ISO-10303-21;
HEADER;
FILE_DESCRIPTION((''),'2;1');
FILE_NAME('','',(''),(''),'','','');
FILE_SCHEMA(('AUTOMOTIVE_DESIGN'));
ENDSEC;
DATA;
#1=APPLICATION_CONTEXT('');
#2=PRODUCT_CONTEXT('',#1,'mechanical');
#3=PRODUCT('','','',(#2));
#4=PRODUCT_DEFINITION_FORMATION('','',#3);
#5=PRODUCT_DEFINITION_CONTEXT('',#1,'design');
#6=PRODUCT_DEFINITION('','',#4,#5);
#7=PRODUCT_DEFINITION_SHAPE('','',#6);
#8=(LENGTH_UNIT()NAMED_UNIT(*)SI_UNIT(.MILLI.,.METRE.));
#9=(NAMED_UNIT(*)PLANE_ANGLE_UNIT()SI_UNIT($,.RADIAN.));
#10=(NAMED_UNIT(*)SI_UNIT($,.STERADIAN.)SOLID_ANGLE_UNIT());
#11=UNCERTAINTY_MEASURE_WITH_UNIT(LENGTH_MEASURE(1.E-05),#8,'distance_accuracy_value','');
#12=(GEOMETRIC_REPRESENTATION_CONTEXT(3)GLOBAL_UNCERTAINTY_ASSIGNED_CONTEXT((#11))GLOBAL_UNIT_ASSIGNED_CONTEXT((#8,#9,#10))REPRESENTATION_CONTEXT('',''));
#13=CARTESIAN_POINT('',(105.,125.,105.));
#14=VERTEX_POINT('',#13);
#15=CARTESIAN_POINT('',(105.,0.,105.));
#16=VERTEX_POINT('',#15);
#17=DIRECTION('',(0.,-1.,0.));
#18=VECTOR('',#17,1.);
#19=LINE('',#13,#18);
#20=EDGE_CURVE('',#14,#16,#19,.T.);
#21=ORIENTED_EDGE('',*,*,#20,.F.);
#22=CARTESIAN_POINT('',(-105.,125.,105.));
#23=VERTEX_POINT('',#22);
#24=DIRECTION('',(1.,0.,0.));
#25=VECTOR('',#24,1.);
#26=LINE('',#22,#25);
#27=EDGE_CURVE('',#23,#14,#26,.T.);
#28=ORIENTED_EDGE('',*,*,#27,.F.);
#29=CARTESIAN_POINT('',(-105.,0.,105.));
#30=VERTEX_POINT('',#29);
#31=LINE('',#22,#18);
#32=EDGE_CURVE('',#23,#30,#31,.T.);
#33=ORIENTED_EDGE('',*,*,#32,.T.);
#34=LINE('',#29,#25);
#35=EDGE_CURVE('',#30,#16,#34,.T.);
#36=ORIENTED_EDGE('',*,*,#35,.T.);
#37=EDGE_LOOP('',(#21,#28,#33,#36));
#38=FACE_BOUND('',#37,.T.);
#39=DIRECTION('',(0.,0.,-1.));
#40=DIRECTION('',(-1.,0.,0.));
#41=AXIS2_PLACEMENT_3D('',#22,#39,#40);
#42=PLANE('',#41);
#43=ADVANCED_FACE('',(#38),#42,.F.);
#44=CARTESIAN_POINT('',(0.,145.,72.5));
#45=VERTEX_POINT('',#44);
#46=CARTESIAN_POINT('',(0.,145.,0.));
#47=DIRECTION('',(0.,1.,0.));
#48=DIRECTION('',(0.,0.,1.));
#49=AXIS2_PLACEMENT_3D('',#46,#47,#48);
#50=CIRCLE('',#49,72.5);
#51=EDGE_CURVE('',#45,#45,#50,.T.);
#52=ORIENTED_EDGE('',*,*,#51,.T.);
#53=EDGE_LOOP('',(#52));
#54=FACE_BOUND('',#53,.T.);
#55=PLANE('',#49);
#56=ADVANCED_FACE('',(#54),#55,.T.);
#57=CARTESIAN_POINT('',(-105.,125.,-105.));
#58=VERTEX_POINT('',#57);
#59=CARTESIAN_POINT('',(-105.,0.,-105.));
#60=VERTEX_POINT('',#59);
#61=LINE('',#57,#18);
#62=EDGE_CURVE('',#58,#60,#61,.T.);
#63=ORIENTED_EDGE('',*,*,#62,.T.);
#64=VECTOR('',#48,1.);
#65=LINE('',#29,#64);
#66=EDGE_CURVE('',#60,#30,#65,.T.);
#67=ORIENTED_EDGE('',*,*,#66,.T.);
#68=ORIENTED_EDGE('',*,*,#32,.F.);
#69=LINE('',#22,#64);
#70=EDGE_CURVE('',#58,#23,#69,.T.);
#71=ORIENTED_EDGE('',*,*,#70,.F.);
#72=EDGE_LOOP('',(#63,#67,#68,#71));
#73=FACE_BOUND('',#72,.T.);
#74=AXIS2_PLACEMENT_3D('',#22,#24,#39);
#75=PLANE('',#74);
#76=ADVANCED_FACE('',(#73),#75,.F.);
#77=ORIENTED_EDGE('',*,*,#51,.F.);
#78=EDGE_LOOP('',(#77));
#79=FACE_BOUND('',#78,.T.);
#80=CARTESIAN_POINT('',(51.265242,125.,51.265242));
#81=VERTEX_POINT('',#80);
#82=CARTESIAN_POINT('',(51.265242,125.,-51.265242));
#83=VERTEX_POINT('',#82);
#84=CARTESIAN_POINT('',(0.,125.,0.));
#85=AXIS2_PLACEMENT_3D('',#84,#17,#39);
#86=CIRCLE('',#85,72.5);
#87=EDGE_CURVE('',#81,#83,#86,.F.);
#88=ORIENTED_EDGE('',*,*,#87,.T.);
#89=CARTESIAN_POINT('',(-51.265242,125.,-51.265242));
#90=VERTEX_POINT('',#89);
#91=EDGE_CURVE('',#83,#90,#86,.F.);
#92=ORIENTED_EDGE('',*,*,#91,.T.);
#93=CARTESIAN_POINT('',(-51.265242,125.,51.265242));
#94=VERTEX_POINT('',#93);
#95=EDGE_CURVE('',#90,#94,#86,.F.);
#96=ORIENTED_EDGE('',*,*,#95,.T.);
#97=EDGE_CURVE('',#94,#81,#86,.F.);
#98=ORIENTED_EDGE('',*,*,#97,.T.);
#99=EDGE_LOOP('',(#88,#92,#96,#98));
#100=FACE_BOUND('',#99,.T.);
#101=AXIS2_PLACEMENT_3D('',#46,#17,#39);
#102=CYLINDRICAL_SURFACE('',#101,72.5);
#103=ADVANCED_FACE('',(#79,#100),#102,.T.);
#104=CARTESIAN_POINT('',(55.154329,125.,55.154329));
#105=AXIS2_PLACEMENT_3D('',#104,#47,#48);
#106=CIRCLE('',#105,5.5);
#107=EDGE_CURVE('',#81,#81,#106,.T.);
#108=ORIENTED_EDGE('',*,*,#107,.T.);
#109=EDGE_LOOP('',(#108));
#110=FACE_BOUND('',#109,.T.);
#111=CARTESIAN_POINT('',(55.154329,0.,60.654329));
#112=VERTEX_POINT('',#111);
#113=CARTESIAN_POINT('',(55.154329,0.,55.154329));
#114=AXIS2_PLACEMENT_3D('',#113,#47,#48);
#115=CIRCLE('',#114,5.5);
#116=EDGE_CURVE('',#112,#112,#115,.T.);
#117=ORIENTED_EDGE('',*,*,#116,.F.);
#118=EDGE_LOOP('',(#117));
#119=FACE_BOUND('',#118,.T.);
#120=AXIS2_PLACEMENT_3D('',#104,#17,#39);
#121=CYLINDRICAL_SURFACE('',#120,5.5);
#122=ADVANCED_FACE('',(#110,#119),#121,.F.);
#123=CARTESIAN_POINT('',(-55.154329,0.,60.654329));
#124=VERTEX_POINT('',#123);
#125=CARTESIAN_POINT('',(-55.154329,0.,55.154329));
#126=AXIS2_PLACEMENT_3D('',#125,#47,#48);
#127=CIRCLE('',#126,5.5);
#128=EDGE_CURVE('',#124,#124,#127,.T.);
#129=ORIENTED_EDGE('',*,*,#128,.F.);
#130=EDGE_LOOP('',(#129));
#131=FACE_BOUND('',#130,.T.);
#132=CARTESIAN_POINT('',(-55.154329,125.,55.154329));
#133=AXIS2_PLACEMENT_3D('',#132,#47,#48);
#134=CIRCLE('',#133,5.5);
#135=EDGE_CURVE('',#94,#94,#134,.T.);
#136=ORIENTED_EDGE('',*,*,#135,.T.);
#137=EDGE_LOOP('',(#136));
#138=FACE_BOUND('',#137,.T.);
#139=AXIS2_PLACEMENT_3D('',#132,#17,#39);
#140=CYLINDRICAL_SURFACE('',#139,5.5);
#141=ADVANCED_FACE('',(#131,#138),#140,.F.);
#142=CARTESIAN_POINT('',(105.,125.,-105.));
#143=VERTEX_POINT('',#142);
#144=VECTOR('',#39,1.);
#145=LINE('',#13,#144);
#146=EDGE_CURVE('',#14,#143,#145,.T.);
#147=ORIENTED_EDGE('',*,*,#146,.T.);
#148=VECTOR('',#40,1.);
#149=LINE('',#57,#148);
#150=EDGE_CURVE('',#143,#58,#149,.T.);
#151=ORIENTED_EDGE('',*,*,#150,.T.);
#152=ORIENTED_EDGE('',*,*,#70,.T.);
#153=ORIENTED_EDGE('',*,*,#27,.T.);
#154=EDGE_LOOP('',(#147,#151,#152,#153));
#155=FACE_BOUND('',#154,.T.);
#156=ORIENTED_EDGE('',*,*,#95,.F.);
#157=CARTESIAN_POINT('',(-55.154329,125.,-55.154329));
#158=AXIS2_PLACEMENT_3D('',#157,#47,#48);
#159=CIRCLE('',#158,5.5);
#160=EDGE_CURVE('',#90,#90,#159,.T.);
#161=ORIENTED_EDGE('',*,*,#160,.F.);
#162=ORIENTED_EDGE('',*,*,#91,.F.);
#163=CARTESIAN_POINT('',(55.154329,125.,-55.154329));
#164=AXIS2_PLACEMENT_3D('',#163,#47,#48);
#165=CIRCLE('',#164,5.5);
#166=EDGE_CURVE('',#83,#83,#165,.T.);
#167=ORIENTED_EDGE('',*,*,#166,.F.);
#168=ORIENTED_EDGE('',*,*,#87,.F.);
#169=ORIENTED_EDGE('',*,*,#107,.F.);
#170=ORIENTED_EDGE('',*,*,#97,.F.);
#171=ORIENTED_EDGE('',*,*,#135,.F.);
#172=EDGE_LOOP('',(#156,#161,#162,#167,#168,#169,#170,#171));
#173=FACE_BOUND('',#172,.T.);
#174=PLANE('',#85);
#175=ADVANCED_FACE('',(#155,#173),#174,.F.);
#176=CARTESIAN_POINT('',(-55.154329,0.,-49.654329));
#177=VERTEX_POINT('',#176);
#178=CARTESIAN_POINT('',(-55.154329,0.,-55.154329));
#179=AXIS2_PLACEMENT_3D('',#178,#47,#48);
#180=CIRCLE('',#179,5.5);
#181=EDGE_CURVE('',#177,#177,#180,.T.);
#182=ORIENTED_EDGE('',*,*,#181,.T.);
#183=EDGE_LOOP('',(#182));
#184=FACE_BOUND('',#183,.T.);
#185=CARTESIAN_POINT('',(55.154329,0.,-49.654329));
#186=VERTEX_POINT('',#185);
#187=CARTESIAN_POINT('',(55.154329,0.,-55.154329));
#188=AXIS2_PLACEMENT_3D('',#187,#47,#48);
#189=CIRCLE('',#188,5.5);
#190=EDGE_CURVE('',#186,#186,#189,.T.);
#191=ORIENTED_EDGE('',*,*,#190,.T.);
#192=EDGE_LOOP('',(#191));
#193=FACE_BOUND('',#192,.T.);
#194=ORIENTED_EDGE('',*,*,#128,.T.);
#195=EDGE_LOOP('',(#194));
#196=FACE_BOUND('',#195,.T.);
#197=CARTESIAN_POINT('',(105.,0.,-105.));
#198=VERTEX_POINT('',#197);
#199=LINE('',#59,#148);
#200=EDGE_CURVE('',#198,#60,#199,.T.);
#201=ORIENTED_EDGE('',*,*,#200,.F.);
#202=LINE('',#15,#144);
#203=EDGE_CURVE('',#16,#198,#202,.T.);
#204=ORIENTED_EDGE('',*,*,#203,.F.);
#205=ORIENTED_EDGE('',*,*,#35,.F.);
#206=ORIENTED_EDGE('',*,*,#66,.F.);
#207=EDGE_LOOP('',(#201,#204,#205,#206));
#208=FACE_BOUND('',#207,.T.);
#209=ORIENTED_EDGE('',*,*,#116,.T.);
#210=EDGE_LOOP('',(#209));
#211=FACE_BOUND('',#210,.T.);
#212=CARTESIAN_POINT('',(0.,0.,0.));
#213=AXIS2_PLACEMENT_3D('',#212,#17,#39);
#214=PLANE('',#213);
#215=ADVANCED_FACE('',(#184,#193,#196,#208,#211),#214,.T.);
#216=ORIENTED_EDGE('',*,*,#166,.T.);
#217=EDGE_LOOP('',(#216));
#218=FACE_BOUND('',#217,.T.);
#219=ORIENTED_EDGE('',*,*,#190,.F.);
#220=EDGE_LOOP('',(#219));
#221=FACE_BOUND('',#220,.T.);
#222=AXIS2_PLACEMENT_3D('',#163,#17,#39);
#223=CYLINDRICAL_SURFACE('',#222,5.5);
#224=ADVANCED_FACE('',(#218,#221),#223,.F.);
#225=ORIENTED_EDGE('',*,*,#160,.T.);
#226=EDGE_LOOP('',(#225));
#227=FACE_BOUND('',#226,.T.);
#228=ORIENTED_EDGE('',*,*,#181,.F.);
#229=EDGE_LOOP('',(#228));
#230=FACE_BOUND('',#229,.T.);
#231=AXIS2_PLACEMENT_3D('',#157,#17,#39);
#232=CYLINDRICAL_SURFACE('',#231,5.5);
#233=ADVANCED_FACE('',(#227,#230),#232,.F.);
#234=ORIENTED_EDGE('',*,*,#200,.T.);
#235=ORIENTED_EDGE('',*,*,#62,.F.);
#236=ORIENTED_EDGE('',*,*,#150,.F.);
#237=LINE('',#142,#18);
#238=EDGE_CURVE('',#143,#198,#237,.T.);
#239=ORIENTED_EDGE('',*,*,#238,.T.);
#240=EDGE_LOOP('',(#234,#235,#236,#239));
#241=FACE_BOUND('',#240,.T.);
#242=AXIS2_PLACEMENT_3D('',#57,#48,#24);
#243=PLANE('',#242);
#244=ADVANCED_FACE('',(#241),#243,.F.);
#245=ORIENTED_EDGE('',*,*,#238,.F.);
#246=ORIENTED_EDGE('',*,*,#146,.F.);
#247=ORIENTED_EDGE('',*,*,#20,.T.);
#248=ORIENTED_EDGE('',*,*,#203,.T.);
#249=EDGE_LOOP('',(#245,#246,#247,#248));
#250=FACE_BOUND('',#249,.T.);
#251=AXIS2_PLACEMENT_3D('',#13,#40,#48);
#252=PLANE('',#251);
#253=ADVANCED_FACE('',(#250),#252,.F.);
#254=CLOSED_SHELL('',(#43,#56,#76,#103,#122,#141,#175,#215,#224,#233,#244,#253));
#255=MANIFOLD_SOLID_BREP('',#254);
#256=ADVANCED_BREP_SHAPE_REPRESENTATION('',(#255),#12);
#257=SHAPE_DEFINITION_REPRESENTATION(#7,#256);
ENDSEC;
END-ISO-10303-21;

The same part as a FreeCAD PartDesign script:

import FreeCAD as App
import Part
import Sketcher

V = App.Vector


def add_polygon(sketch, points):
    """Adds a closed chain of lines whose ends are joined by coincident constraints."""
    first, n = sketch.GeometryCount, len(points)
    for a, b in zip(points, points[1:] + points[:1]):
        sketch.addGeometry(Part.LineSegment(App.Vector(*a, 0), App.Vector(*b, 0)), False)
    for i in range(n):
        sketch.addConstraint(Sketcher.Constraint("Coincident", first + i, 2, first + (i + 1) % n, 1))

doc = App.newDocument("Part")
body = doc.addObject("PartDesign::Body", "Body")

sketch1 = body.newObject("Sketcher::SketchObject", "Sketch")
sketch1.AttachmentSupport = (doc.getObject("XZ_Plane"), [""])
sketch1.MapMode = "FlatFace"
add_polygon(sketch1, [(-105, -105), (-105, 105), (105, 105), (105, -105)])
sketch1.addGeometry(Part.Circle(V(-55.154329, 55.154329, 0), V(0, 0, 1), 5.5), False)
sketch1.addGeometry(Part.Circle(V(55.154329, 55.154329, 0), V(0, 0, 1), 5.5), False)
sketch1.addGeometry(Part.Circle(V(-55.154329, -55.154329, 0), V(0, 0, 1), 5.5), False)
sketch1.addGeometry(Part.Circle(V(55.154329, -55.154329, 0), V(0, 0, 1), 5.5), False)
sketch1.addConstraint([
    Sketcher.Constraint("Vertical", 0),
    Sketcher.Constraint("Horizontal", 1),
    Sketcher.Constraint("Vertical", 2),
    Sketcher.Constraint("Horizontal", 3),
    Sketcher.Constraint("Equal", 4, 5),
    Sketcher.Constraint("Equal", 5, 6),
    Sketcher.Constraint("Equal", 6, 7),
    Sketcher.Constraint("Symmetric", 5, 3, 6, 3, -1, 1),
    Sketcher.Constraint("Symmetric", 4, 3, 7, 3, -1, 1),
    Sketcher.Constraint("Symmetric", 0, 2, 2, 2, -1, 1),
    Sketcher.Constraint("Symmetric", 4, 3, 5, 3, -2),
    Sketcher.Constraint("Equal", 3, 0),
    Sketcher.Constraint("Diameter", 4, 11.0),
    Sketcher.Constraint("DistanceX", 1, 1, 1, 2, 210.0),
    Sketcher.Constraint("DistanceX", 4, 3, -1, 1, 55.154329),
    Sketcher.Constraint("DistanceY", -1, 1, 4, 3, 55.154329),
])
pad1 = body.newObject("PartDesign::Pad", "Pad")
pad1.Profile = sketch1
pad1.Length = 125
pad1.Reversed = True

sketch2 = body.newObject("Sketcher::SketchObject", "Sketch001")
sketch2.AttachmentSupport = (doc.getObject("XZ_Plane"), [""])
sketch2.MapMode = "FlatFace"
sketch2.addGeometry(Part.Circle(V(0, 0, 0), V(0, 0, 1), 72.5), False)
sketch2.addConstraint([
    Sketcher.Constraint("Coincident", 0, 3, -1, 1),
    Sketcher.Constraint("Diameter", 0, 145.0),
])
pad2 = body.newObject("PartDesign::Pad", "Pad001")
pad2.Profile = sketch2
pad2.Length = 145
pad2.Reversed = True

doc.recompute()
